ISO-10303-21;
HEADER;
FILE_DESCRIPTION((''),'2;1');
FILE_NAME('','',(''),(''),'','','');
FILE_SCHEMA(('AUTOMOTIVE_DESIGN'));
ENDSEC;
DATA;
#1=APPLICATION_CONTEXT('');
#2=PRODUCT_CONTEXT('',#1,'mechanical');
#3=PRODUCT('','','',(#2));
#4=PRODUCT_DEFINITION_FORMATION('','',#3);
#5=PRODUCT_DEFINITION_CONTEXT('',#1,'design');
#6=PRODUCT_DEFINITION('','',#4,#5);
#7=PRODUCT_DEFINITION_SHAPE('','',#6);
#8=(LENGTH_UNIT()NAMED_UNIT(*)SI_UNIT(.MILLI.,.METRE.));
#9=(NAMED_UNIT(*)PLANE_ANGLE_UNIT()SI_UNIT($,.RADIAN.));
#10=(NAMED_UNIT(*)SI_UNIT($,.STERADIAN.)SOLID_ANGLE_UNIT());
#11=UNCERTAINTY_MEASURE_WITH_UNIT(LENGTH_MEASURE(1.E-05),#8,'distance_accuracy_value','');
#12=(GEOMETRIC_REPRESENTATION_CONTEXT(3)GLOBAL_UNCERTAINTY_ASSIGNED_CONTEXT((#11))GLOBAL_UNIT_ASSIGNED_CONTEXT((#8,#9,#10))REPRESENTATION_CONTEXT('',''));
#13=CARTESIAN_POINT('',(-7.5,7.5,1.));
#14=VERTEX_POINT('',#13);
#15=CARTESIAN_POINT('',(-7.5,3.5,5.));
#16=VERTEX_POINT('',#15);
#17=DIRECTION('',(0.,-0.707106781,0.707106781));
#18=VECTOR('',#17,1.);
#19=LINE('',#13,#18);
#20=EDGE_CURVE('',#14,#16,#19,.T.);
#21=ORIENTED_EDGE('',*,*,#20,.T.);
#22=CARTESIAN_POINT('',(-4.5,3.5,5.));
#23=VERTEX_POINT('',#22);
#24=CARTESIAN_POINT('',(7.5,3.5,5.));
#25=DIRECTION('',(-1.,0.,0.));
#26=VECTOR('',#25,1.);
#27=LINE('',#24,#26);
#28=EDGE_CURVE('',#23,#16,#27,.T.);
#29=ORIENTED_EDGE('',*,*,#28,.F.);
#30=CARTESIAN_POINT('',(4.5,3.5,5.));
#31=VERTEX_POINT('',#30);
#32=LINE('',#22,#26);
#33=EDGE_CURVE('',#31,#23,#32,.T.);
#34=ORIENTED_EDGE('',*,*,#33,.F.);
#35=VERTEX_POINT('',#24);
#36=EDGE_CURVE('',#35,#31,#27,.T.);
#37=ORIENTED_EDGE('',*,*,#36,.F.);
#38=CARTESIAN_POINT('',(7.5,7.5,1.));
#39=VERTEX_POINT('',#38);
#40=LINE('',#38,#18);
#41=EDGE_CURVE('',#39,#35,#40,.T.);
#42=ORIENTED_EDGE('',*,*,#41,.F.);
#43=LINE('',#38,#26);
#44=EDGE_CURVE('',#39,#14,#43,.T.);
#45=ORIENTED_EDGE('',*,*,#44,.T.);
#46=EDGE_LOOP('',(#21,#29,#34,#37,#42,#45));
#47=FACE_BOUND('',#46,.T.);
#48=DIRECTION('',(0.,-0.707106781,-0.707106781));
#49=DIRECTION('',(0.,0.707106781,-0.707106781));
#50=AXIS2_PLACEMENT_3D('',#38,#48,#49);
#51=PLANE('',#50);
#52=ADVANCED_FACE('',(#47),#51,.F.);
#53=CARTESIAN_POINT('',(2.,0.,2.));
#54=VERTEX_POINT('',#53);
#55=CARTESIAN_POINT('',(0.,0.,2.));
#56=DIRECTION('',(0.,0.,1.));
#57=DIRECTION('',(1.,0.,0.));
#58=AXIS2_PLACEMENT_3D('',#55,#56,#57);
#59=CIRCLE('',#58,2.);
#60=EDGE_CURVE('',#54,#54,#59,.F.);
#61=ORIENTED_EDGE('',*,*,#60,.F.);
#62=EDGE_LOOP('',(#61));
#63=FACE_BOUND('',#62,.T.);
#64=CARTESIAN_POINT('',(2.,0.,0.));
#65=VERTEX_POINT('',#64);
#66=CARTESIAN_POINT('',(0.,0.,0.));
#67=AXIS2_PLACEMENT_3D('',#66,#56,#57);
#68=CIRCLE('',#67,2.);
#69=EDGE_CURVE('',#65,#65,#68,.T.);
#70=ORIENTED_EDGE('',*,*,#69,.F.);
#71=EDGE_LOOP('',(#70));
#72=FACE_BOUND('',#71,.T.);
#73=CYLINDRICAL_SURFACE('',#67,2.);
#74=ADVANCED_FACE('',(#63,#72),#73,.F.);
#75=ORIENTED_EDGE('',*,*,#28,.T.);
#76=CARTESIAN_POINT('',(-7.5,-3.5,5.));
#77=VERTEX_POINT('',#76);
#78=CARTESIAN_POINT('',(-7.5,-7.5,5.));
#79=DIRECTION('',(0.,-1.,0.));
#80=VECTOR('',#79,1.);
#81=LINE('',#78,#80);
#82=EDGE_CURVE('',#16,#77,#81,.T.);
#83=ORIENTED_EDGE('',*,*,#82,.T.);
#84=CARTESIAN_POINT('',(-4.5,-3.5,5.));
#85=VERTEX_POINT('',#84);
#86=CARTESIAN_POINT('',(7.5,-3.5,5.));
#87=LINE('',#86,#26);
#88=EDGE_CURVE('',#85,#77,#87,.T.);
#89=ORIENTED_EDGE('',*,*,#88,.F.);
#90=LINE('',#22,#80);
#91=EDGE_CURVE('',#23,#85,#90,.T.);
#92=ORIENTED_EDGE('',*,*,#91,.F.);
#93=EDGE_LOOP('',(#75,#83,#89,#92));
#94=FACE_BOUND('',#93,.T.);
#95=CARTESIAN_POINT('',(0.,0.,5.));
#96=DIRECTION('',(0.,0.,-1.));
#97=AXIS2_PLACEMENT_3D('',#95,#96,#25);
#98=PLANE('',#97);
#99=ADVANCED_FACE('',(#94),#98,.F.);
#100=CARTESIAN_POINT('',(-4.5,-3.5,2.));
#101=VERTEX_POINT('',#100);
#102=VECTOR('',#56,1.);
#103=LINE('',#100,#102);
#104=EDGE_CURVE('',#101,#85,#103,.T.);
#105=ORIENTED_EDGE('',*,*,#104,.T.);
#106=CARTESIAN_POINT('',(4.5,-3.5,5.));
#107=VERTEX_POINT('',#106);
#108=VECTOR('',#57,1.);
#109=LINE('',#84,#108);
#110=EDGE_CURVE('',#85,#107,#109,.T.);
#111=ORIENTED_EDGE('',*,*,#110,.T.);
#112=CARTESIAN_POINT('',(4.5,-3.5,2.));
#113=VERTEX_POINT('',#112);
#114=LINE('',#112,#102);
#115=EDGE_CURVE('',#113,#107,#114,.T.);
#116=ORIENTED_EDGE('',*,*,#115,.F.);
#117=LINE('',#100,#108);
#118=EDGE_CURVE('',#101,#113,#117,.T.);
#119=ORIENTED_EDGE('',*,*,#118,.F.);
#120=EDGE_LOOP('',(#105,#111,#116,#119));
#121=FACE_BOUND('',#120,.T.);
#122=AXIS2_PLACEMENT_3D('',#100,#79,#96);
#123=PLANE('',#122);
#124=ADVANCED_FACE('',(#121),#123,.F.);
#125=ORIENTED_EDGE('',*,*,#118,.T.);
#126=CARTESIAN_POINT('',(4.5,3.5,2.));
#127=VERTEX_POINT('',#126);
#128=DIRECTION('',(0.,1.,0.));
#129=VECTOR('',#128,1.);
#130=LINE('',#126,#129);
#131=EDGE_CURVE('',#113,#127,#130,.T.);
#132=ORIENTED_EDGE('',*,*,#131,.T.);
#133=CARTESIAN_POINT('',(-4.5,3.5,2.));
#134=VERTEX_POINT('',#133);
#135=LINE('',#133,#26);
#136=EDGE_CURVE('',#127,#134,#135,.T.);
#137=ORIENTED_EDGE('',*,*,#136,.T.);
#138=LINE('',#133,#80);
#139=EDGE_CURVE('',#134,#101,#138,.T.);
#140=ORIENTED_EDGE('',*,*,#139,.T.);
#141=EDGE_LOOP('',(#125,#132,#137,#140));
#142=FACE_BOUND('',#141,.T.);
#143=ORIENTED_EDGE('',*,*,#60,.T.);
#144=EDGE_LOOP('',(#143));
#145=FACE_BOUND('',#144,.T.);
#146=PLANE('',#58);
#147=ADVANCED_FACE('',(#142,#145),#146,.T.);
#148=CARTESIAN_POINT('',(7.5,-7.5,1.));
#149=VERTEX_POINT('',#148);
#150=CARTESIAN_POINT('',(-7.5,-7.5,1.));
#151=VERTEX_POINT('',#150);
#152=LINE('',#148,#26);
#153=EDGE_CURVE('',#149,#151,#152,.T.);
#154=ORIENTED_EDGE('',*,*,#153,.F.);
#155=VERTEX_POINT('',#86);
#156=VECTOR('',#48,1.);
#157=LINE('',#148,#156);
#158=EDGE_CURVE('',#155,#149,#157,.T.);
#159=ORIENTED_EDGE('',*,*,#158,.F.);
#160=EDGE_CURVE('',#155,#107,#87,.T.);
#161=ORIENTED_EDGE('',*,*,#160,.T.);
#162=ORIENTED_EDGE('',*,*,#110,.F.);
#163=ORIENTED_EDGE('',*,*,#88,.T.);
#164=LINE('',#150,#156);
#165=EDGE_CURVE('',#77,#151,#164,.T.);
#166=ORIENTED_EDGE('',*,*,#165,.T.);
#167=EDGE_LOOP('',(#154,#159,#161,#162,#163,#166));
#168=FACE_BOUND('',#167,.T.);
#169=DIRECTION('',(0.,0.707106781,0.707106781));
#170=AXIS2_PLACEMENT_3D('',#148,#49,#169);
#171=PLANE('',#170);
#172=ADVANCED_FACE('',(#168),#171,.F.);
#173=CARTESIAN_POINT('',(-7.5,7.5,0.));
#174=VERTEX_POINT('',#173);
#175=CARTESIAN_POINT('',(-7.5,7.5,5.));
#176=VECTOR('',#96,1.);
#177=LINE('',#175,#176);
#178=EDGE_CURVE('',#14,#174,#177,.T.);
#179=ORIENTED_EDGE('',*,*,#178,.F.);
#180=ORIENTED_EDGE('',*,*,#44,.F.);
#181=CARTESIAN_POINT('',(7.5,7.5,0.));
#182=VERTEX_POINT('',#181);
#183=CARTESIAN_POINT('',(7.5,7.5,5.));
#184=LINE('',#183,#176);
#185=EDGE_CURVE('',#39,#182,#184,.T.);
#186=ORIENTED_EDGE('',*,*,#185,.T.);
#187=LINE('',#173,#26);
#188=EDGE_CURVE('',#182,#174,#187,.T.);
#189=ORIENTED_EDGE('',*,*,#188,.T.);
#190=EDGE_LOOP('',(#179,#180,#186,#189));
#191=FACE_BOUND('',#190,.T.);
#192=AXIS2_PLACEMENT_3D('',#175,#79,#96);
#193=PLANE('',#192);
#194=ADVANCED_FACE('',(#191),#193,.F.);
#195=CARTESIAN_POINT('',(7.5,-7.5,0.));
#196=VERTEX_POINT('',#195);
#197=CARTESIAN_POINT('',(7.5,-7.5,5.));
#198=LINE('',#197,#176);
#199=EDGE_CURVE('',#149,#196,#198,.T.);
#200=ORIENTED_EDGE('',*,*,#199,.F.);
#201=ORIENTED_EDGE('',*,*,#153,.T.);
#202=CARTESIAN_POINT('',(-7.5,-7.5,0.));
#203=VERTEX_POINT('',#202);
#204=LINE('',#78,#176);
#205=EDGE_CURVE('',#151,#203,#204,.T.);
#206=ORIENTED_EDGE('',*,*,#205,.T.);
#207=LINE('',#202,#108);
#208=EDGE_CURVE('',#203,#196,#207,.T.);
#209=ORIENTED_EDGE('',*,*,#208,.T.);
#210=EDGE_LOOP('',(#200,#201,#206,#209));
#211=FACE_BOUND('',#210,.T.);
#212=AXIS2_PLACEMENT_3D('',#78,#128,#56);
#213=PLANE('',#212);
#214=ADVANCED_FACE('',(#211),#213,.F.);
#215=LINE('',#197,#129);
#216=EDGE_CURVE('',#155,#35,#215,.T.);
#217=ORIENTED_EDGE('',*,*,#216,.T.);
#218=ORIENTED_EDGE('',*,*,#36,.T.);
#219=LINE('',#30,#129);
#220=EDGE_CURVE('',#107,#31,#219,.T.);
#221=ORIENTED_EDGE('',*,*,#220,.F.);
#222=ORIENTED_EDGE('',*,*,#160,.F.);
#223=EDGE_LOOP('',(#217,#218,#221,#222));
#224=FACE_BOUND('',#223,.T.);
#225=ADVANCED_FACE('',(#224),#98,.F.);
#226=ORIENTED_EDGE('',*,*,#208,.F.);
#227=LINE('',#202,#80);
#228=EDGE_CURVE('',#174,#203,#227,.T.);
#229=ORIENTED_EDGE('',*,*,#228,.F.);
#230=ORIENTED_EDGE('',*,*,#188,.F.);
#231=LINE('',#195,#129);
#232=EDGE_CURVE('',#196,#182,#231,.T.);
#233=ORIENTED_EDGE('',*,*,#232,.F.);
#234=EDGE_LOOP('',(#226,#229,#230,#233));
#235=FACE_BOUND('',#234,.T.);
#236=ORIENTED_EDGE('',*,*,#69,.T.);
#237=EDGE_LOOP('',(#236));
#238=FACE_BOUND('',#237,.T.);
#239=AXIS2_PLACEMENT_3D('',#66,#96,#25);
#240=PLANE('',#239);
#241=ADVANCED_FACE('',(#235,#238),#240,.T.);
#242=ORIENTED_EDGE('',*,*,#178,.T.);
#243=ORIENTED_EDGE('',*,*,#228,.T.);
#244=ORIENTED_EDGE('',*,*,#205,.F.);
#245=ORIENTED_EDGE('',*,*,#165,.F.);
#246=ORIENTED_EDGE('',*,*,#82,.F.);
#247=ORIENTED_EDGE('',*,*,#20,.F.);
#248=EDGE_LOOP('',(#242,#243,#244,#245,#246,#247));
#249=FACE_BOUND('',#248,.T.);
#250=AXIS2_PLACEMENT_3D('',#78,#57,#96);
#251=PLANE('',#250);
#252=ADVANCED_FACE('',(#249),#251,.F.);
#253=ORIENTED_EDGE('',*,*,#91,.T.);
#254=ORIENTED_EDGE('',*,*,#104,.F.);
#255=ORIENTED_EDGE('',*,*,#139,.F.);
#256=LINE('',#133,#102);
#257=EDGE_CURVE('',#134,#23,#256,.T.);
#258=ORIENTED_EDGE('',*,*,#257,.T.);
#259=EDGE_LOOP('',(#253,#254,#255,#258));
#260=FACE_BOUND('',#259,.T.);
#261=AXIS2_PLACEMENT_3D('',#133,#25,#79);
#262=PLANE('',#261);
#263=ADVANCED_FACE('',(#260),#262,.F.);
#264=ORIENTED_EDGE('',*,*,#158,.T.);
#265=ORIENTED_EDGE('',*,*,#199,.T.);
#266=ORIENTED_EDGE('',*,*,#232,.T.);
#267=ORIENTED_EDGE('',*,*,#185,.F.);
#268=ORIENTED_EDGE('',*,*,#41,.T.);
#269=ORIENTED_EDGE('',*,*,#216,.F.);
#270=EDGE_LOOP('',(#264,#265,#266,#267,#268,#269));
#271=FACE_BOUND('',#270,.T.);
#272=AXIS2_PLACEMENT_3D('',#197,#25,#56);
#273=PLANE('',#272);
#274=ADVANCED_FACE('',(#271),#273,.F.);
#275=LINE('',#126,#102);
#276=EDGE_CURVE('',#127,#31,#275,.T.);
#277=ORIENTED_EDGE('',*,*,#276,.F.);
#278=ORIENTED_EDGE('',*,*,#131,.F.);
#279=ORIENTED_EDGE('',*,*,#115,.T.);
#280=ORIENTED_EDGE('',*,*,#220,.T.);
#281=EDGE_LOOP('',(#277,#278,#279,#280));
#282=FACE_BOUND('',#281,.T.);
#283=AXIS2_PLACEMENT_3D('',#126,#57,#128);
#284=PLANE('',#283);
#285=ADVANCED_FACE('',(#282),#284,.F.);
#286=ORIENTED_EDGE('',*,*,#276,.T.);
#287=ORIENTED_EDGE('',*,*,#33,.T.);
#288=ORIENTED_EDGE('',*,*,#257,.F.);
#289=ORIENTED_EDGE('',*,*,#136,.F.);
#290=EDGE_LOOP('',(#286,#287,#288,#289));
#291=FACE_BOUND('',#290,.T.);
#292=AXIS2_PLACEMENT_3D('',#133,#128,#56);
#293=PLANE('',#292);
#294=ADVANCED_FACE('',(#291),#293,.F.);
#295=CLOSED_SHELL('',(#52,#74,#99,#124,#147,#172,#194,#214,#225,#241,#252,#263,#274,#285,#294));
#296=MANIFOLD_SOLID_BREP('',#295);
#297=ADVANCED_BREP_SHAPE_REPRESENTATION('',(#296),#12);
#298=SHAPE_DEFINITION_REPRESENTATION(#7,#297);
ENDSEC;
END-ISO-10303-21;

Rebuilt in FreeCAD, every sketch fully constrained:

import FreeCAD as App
import Part
import Sketcher
Q = App.Units.Quantity

doc = App.newDocument("Part")
body = doc.addObject("PartDesign::Body", "Body")

sketch1 = body.newObject("Sketcher::SketchObject", "Sketch")
sketch1.AttachmentSupport = (doc.getObject("XY_Plane"), [""])
sketch1.MapMode = "FlatFace"
sketch1.addGeometry(Part.LineSegment(App.Vector(-8, 8, 0), App.Vector(-8, -8, 0)), False)
sketch1.addGeometry(Part.LineSegment(App.Vector(-8, -8, 0), App.Vector(8, -8, 0)), False)
sketch1.addGeometry(Part.LineSegment(App.Vector(8, -8, 0), App.Vector(8, 8, 0)), False)
sketch1.addGeometry(Part.LineSegment(App.Vector(8, 8, 0), App.Vector(-8, 8, 0)), False)
sketch1.addConstraint(Sketcher.Constraint("Coincident", 0, 2, 1, 1))
sketch1.addConstraint(Sketcher.Constraint("Coincident", 1, 2, 2, 1))
sketch1.addConstraint(Sketcher.Constraint("Coincident", 2, 2, 3, 1))
sketch1.addConstraint(Sketcher.Constraint("Coincident", 3, 2, 0, 1))
sketch1.addConstraint(Sketcher.Constraint("Vertical", 0))
sketch1.addConstraint(Sketcher.Constraint("Horizontal", 1))
sketch1.addConstraint(Sketcher.Constraint("Vertical", 2))
sketch1.addConstraint(Sketcher.Constraint("Horizontal", 3))
sketch1.addConstraint(Sketcher.Constraint("Symmetric", 0, 2, 2, 2, -1, 1))
sketch1.addConstraint(Sketcher.Constraint("Equal", 3, 0))
sketch1.addConstraint(Sketcher.Constraint("DistanceX", 1, 1, 1, 2, Q("15 mm")))
pad1 = body.newObject("PartDesign::Pad", "Pad")
pad1.Profile = sketch1
pad1.Length = 5

sketch2 = body.newObject("Sketcher::SketchObject", "Sketch001")
sketch2.AttachmentSupport = (doc.getObject("YZ_Plane"), [""])
sketch2.MapMode = "FlatFace"
sketch2.AttachmentOffset = App.Placement(App.Vector(0, 0, -7.5), App.Rotation())
sketch2.addGeometry(Part.LineSegment(App.Vector(7.5, 1, 0), App.Vector(3.5, 5, 0)), False)
sketch2.addGeometry(Part.LineSegment(App.Vector(3.5, 5, 0), App.Vector(7.5, 5, 0)), False)
sketch2.addGeometry(Part.LineSegment(App.Vector(7.5, 5, 0), App.Vector(7.5, 1, 0)), False)
sketch2.addGeometry(Part.LineSegment(App.Vector(-3.5, 5, 0), App.Vector(-7.5, 1, 0)), False)
sketch2.addGeometry(Part.LineSegment(App.Vector(-7.5, 1, 0), App.Vector(-7.5, 5, 0)), False)
sketch2.addGeometry(Part.LineSegment(App.Vector(-7.5, 5, 0), App.Vector(-3.5, 5, 0)), False)
sketch2.addConstraint(Sketcher.Constraint("Coincident", 0, 2, 1, 1))
sketch2.addConstraint(Sketcher.Constraint("Coincident", 1, 2, 2, 1))
sketch2.addConstraint(Sketcher.Constraint("Coincident", 2, 2, 0, 1))
sketch2.addConstraint(Sketcher.Constraint("Coincident", 3, 2, 4, 1))
sketch2.addConstraint(Sketcher.Constraint("Coincident", 4, 2, 5, 1))
sketch2.addConstraint(Sketcher.Constraint("Coincident", 5, 2, 3, 1))
sketch2.addConstraint(Sketcher.Constraint("Horizontal", 1))
sketch2.addConstraint(Sketcher.Constraint("Vertical", 2))
sketch2.addConstraint(Sketcher.Constraint("Vertical", 4))
sketch2.addConstraint(Sketcher.Constraint("Horizontal", 5))
sketch2.addConstraint(Sketcher.Constraint("Symmetric", 2, 2, 3, 2, -2))
sketch2.addConstraint(Sketcher.Constraint("Symmetric", 0, 2, 5, 2, -2))
sketch2.addConstraint(Sketcher.Constraint("Perpendicular", 0, 3))
sketch2.addConstraint(Sketcher.Constraint("DistanceX", 1, 1, 1, 2, Q("4 mm")))
sketch2.addConstraint(Sketcher.Constraint("DistanceY", -1, 1, 0, 2, Q("5 mm")))
sketch2.addConstraint(Sketcher.Constraint("DistanceX", 3, 2, 0, 2, Q("11 mm")))
pocket1 = body.newObject("PartDesign::Pocket", "Pocket")
pocket1.Profile = sketch2
pocket1.Type = "ThroughAll"
pocket1.Reversed = True

sketch3 = body.newObject("Sketcher::SketchObject", "Sketch002")
sketch3.AttachmentSupport = (doc.getObject("XY_Plane"), [""])
sketch3.MapMode = "FlatFace"
sketch3.AttachmentOffset = App.Placement(App.Vector(0, 0, 5), App.Rotation())
sketch3.addGeometry(Part.Circle(App.Vector(0, 0, 0), App.Vector(0, 0, 1), 2), False)
sketch3.addConstraint(Sketcher.Constraint("Coincident", 0, 3, -1, 1))
sketch3.addConstraint(Sketcher.Constraint("Diameter", 0, Q("4 mm")))
pocket2 = body.newObject("PartDesign::Pocket", "Pocket001")
pocket2.Profile = sketch3
pocket2.Type = "ThroughAll"

sketch4 = body.newObject("Sketcher::SketchObject", "Sketch003")
sketch4.AttachmentSupport = (doc.getObject("XY_Plane"), [""])
sketch4.MapMode = "FlatFace"
sketch4.AttachmentOffset = App.Placement(App.Vector(0, 0, 5), App.Rotation())
sketch4.addGeometry(Part.LineSegment(App.Vector(-4, 4, 0), App.Vector(-4, -4, 0)), False)
sketch4.addGeometry(Part.LineSegment(App.Vector(-4, -4, 0), App.Vector(4, -4, 0)), False)
sketch4.addGeometry(Part.LineSegment(App.Vector(4, -4, 0), App.Vector(4, 4, 0)), False)
sketch4.addGeometry(Part.LineSegment(App.Vector(4, 4, 0), App.Vector(-4, 4, 0)), False)
sketch4.addConstraint(Sketcher.Constraint("Coincident", 0, 2, 1, 1))
sketch4.addConstraint(Sketcher.Constraint("Coincident", 1, 2, 2, 1))
sketch4.addConstraint(Sketcher.Constraint("Coincident", 2, 2, 3, 1))
sketch4.addConstraint(Sketcher.Constraint("Coincident", 3, 2, 0, 1))
sketch4.addConstraint(Sketcher.Constraint("Vertical", 0))
sketch4.addConstraint(Sketcher.Constraint("Horizontal", 1))
sketch4.addConstraint(Sketcher.Constraint("Vertical", 2))
sketch4.addConstraint(Sketcher.Constraint("Horizontal", 3))
sketch4.addConstraint(Sketcher.Constraint("Symmetric", 0, 2, 2, 2, -1, 1))
sketch4.addConstraint(Sketcher.Constraint("DistanceX", 1, 1, 1, 2, Q("9 mm")))
sketch4.addConstraint(Sketcher.Constraint("DistanceY", 0, 2, 0, 1, Q("7 mm")))
pocket3 = body.newObject("PartDesign::Pocket", "Pocket002")
pocket3.Profile = sketch4
pocket3.Length = 3

doc.recompute()
